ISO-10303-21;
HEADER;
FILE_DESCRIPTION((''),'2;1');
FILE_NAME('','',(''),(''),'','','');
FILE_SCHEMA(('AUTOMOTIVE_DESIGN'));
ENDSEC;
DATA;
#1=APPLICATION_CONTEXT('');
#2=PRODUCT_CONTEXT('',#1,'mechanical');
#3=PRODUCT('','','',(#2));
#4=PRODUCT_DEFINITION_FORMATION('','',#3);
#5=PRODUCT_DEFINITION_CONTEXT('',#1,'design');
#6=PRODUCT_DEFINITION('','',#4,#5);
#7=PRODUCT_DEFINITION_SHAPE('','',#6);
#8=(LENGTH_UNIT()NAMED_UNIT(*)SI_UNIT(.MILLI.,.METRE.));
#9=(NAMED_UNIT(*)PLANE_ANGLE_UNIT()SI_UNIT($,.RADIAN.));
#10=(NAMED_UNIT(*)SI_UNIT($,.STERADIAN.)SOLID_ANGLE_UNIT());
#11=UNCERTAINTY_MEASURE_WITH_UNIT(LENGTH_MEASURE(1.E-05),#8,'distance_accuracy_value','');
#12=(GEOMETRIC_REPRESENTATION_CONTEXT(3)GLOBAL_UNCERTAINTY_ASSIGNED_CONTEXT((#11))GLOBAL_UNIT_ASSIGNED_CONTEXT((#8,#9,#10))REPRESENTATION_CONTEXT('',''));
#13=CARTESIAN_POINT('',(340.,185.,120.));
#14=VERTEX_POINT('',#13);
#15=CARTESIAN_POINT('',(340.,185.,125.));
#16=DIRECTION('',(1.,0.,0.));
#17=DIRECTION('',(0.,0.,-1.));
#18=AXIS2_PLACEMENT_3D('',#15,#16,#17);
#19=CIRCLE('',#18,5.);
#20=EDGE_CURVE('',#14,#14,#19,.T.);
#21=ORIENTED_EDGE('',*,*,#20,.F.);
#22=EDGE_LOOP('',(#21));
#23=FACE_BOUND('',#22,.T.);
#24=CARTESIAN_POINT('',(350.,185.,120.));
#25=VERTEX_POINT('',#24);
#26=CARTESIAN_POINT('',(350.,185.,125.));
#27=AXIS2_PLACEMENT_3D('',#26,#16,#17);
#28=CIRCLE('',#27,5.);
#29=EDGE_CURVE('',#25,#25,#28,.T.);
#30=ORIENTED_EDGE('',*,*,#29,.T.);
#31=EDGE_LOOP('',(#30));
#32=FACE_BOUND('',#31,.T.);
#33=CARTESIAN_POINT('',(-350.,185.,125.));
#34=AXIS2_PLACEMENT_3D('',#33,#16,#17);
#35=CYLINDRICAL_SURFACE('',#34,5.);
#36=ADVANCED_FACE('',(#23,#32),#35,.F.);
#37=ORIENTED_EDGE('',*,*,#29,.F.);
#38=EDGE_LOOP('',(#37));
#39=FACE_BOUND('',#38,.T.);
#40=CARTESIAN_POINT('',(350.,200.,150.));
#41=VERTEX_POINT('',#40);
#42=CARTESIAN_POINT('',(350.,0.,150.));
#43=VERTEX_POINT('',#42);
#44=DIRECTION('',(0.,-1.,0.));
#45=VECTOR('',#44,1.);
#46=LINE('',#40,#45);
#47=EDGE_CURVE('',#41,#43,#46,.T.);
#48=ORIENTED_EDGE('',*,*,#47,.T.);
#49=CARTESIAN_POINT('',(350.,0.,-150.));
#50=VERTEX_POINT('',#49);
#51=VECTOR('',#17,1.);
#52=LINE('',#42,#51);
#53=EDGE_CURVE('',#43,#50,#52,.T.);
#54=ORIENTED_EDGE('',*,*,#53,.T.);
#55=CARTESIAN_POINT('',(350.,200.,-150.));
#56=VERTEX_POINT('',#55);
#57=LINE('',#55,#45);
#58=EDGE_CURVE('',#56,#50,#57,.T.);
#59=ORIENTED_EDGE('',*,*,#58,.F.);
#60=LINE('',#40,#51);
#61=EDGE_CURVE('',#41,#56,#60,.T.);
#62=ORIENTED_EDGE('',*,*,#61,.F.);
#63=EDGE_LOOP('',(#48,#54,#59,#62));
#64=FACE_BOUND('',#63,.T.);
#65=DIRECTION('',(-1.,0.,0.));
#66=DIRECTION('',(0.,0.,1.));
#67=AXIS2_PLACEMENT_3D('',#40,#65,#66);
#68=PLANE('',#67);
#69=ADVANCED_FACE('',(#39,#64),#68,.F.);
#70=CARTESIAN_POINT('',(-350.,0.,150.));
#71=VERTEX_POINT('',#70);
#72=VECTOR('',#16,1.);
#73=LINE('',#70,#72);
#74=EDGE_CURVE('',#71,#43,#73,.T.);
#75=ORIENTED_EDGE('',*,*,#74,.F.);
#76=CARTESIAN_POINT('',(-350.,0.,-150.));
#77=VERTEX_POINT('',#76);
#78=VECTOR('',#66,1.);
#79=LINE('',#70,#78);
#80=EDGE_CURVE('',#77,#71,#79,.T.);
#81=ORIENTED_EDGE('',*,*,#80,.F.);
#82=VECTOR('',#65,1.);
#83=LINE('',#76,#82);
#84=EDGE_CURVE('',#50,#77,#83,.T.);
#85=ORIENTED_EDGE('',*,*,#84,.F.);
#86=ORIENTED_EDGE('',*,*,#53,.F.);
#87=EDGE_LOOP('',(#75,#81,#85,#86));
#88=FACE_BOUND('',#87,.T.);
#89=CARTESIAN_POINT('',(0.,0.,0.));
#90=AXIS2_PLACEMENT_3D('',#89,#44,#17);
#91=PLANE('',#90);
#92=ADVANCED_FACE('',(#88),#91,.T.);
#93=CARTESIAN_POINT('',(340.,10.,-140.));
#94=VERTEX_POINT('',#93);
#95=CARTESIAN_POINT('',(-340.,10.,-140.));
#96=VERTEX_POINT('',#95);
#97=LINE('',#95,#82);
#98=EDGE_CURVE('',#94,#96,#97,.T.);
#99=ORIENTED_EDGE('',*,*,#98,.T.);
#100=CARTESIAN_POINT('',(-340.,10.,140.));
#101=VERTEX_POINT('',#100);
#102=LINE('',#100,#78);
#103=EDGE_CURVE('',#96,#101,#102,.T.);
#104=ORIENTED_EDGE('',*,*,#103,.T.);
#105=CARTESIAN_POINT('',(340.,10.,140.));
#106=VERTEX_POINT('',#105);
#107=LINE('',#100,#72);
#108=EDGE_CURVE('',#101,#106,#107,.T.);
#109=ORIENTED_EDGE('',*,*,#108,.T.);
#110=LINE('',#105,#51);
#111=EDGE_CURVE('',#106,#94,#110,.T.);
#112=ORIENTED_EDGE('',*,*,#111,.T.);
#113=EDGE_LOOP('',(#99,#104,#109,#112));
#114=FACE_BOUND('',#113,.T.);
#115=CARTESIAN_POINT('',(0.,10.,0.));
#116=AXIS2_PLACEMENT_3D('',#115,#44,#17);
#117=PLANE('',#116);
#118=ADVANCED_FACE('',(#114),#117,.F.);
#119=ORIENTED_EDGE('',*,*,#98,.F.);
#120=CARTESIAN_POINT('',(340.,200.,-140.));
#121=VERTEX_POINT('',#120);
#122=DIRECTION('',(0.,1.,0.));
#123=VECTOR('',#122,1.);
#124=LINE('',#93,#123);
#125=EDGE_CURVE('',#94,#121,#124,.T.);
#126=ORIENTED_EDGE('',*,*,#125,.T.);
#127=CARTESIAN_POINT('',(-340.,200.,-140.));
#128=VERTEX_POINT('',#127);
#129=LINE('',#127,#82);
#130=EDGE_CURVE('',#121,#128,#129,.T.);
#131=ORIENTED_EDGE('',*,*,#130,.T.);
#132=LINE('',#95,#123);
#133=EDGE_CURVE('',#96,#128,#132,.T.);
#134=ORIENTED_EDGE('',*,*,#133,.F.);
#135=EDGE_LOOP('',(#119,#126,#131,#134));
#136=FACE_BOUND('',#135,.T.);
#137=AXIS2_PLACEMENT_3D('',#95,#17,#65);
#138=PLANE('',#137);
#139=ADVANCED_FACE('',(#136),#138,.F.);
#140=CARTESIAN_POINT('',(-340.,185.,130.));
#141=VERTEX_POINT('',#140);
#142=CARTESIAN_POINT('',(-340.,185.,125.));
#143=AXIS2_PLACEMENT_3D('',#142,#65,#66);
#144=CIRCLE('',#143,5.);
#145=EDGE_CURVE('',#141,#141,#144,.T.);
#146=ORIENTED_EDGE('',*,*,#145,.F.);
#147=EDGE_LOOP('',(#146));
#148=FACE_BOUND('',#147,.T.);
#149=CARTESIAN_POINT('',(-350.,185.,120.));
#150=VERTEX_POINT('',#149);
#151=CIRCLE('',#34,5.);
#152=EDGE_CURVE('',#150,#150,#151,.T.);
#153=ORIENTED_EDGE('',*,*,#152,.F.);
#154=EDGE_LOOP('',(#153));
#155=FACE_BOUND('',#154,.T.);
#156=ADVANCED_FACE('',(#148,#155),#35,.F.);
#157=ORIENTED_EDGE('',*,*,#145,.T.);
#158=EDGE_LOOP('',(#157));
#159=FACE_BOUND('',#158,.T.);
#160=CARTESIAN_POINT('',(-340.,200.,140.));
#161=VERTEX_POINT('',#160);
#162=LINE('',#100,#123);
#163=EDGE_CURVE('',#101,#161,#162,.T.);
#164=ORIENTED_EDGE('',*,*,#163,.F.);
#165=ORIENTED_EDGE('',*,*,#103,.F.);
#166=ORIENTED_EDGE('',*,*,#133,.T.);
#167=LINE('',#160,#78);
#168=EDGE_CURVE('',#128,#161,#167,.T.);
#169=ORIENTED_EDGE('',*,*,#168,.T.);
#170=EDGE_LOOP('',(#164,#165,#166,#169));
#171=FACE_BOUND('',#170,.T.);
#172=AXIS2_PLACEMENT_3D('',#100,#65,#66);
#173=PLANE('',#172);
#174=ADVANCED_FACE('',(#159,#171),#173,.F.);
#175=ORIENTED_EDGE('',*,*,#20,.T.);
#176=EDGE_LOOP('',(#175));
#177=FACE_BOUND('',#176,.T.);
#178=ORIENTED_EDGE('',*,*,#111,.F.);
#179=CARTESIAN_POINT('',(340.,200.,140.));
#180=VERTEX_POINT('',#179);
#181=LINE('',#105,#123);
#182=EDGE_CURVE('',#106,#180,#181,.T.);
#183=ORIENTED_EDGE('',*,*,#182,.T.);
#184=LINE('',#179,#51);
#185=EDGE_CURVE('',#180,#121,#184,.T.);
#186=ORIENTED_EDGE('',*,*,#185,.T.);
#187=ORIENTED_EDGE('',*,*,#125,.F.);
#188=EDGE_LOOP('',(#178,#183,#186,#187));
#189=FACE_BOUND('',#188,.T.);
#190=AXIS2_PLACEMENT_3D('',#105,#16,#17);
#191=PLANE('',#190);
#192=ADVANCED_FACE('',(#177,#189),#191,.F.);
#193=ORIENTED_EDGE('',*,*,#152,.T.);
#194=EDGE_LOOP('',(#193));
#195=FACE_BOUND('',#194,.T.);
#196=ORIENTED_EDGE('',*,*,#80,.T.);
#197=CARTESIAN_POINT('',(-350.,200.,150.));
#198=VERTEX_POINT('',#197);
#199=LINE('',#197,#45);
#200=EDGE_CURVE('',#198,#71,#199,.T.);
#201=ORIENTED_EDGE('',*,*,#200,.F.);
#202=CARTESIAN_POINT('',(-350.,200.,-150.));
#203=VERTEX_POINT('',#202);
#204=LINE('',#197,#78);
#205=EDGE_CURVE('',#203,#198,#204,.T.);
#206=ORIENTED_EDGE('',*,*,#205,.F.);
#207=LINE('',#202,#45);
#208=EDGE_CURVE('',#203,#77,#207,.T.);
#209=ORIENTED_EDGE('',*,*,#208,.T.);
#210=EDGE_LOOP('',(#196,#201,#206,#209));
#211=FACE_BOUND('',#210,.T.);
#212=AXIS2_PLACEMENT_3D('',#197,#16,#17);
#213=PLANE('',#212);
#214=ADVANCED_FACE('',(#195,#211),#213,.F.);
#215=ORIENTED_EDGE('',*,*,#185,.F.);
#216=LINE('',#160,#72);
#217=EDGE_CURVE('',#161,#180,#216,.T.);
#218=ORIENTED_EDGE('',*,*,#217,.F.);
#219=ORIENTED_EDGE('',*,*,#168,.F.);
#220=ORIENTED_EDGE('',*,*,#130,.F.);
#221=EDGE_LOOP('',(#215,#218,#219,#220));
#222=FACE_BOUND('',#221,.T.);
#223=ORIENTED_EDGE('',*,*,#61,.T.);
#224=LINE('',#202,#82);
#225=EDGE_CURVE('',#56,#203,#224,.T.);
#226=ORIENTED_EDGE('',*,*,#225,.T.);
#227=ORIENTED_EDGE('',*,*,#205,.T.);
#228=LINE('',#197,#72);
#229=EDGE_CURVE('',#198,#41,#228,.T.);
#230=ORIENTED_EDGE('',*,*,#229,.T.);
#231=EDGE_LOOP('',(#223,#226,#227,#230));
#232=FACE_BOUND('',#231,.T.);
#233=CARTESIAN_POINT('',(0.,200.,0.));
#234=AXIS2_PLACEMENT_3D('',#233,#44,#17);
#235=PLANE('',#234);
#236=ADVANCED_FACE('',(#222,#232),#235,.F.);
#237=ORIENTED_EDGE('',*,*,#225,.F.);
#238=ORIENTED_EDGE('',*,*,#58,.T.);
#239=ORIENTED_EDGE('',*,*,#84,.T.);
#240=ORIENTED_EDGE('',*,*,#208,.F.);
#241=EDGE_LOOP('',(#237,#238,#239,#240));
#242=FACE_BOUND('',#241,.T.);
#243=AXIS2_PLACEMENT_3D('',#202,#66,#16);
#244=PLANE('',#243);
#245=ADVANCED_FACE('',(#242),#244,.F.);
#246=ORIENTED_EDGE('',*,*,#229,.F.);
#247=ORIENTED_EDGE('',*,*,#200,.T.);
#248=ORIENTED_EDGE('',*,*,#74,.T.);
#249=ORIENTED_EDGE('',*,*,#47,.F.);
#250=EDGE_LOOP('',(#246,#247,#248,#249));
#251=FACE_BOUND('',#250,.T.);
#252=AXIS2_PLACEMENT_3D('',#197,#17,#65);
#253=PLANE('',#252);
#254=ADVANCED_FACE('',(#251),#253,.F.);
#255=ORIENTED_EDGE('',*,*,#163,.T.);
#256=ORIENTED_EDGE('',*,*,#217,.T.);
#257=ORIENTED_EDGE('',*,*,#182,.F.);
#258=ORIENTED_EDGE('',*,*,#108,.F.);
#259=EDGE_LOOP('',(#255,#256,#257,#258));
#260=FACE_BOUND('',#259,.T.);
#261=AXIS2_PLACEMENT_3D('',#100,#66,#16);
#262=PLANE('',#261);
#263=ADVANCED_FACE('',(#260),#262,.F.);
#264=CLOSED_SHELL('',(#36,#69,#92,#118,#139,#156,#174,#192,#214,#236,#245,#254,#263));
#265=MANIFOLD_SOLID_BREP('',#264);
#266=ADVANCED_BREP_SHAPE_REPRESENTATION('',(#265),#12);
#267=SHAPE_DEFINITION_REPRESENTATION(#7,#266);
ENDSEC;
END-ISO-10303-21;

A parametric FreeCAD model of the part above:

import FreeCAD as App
import Part
import Sketcher
from FreeCAD import Vector


def add_polygon(sketch, points):
    """Adds a closed chain of lines whose ends are joined by coincident constraints."""
    first, n = sketch.GeometryCount, len(points)
    for a, b in zip(points, points[1:] + points[:1]):
        sketch.addGeometry(Part.LineSegment(App.Vector(*a, 0), App.Vector(*b, 0)), False)
    for i in range(n):
        sketch.addConstraint(Sketcher.Constraint("Coincident", first + i, 2, first + (i + 1) % n, 1))

doc = App.newDocument("Part")
body = doc.addObject("PartDesign::Body", "Body")

# Sketch on XZ plane
sketch1 = body.newObject("Sketcher::SketchObject", "Sketch")
sketch1.AttachmentSupport = (doc.getObject("XZ_Plane"), [""])
sketch1.MapMode = "FlatFace"
add_polygon(sketch1, [(-350, -150), (-350, 150), (350, 150), (350, -150)])  # lines 0-3
sketch1.addConstraint([
    Sketcher.Constraint("Vertical", 0),
    Sketcher.Constraint("Horizontal", 1),
    Sketcher.Constraint("Vertical", 2),
    Sketcher.Constraint("Horizontal", 3),
    Sketcher.Constraint("Symmetric", 0, 2, 2, 2, -1, 1),
    Sketcher.Constraint("DistanceX", 1, 1, 1, 2, 700.0),
    Sketcher.Constraint("DistanceY", 0, 1, 0, 2, 300.0),
])
pad1 = body.newObject("PartDesign::Pad", "Pad")
pad1.Profile = sketch1
pad1.Length = 200
pad1.Reversed = True

# Sketch on XZ plane
sketch2 = body.newObject("Sketcher::SketchObject", "Sketch001")
sketch2.AttachmentSupport = (doc.getObject("XZ_Plane"), [""])
sketch2.MapMode = "FlatFace"
sketch2.AttachmentOffset = App.Placement(Vector(0, 0, -200), App.Rotation())
add_polygon(sketch2, [(-340, -140), (-340, 140), (340, 140), (340, -140)])  # lines 0-3
sketch2.addConstraint([
    Sketcher.Constraint("Vertical", 0),
    Sketcher.Constraint("Horizontal", 1),
    Sketcher.Constraint("Vertical", 2),
    Sketcher.Constraint("Horizontal", 3),
    Sketcher.Constraint("Symmetric", 0, 2, 2, 2, -1, 1),
    Sketcher.Constraint("DistanceX", 1, 1, 1, 2, 680.0),
    Sketcher.Constraint("DistanceY", 0, 1, 0, 2, 280.0),
])
pocket1 = body.newObject("PartDesign::Pocket", "Pocket")
pocket1.Profile = sketch2
pocket1.Length = 190
pocket1.Reversed = True

# Sketch on YZ plane
sketch3 = body.newObject("Sketcher::SketchObject", "Sketch002")
sketch3.AttachmentSupport = (doc.getObject("YZ_Plane"), [""])
sketch3.MapMode = "FlatFace"
sketch3.AttachmentOffset = App.Placement(Vector(0, 0, 350), App.Rotation())
sketch3.addGeometry(Part.Circle(Vector(185, 125, 0), Vector(0, 0, 1), 5), False)
sketch3.addConstraint([
    Sketcher.Constraint("Diameter", 0, 10.0),
    Sketcher.Constraint("DistanceX", -1, 1, 0, 3, 185.0),
    Sketcher.Constraint("DistanceY", -1, 1, 0, 3, 125.0),
])
pocket2 = body.newObject("PartDesign::Pocket", "Pocket001")
pocket2.Profile = sketch3
pocket2.Length = 700

doc.recompute()
